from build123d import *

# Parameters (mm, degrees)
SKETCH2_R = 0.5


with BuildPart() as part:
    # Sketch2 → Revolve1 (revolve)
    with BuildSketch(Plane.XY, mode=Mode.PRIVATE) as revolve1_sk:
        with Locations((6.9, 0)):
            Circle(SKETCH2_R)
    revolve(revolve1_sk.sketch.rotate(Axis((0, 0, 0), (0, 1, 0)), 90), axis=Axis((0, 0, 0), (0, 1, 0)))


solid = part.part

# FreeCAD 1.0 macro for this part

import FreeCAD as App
import Part
import Sketcher
from FreeCAD import Vector
Q = App.Units.Quantity

doc = App.newDocument("Part")
body = doc.addObject("PartDesign::Body", "Body")

# Sketch on XY plane
sketch1 = body.newObject("Sketcher::SketchObject", "Sketch")
sketch1.AttachmentSupport = (doc.getObject("XY_Plane"), [""])
sketch1.MapMode = "FlatFace"
sketch1.addGeometry(Part.Circle(Vector(6.9, 0, 0), Vector(0, 0, 1), 0.5), False)
sketch1.addConstraint(Sketcher.Constraint("PointOnObject", 0, 3, -1))
sketch1.addConstraint(Sketcher.Constraint("Diameter", 0, Q("1 mm")))
sketch1.addConstraint(Sketcher.Constraint("DistanceX", -1, 1, 0, 3, Q("6.9 mm")))
revolution = body.newObject("PartDesign::Revolution", "Revolution")
revolution.Profile = sketch1
revolution.ReferenceAxis = (sketch1, ["V_Axis"])
revolution.Angle = 360

doc.recompute()
